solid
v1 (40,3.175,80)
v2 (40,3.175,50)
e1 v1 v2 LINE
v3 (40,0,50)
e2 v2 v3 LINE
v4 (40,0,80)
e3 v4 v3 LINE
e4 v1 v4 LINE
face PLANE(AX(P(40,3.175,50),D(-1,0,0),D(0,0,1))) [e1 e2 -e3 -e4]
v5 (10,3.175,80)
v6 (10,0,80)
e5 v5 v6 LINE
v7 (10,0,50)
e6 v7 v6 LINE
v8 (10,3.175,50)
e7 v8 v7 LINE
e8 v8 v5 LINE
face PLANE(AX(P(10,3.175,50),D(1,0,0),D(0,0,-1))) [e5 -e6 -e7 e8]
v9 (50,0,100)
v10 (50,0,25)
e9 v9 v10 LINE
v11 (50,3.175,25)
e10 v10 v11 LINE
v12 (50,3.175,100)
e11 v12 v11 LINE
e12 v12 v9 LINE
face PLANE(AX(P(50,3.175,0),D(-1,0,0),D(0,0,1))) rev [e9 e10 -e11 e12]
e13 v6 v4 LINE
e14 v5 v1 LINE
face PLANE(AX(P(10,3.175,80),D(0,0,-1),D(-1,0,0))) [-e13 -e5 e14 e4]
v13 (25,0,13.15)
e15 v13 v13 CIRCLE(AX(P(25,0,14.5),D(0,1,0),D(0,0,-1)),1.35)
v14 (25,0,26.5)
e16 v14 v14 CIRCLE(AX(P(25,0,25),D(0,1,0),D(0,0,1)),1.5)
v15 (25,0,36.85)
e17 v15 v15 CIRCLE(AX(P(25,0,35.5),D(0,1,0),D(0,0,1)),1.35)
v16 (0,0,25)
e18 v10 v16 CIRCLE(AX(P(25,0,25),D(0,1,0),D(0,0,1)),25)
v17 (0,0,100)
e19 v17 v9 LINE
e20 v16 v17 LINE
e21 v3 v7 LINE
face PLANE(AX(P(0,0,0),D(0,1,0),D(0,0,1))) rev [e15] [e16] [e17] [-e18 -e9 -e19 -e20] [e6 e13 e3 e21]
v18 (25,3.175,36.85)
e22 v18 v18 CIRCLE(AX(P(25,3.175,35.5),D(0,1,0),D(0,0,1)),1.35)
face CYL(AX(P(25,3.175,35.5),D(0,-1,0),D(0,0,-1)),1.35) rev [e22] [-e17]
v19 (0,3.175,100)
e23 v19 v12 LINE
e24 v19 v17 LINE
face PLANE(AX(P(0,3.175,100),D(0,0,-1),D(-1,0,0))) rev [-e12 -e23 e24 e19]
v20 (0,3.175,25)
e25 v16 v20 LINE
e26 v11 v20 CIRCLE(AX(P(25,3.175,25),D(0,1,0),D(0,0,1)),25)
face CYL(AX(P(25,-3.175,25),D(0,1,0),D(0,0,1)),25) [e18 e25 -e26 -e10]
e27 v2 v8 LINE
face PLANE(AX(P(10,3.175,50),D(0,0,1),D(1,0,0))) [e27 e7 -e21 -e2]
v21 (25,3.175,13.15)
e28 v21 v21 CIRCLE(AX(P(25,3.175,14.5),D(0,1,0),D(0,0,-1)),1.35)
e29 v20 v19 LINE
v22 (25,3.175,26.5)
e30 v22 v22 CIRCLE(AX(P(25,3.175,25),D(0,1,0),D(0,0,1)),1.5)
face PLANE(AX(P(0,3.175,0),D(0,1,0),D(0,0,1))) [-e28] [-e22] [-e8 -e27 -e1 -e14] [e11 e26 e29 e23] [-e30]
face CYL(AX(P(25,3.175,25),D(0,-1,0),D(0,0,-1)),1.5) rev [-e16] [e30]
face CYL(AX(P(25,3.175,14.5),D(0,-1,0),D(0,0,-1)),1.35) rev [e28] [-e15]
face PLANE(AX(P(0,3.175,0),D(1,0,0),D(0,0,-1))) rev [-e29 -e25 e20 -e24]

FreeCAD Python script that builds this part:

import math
import FreeCAD as App
import Part
import Sketcher
from FreeCAD import Vector
Q = App.Units.Quantity

doc = App.newDocument("Part")
body = doc.addObject("PartDesign::Body", "Body")

# Sketch on XZ plane
sketch1 = body.newObject("Sketcher::SketchObject", "Sketch")
sketch1.AttachmentSupport = (doc.getObject("XZ_Plane"), [""])
sketch1.MapMode = "FlatFace"
sketch1.addGeometry([
    Part.LineSegment(Vector(0, 0, 0), Vector(0, 100, 0)),  # 0
    Part.LineSegment(Vector(0, 100, 0), Vector(50, 100, 0)),  # 1
    Part.LineSegment(Vector(50, 100, 0), Vector(50, 0, 0)),  # 2
    Part.LineSegment(Vector(50, 0, 0), Vector(0, 0, 0)),  # 3
    Part.LineSegment(Vector(40, 80, 0), Vector(10, 80, 0)),  # 4
    Part.LineSegment(Vector(10, 80, 0), Vector(10, 50, 0)),  # 5
    Part.LineSegment(Vector(10, 50, 0), Vector(40, 50, 0)),  # 6
    Part.LineSegment(Vector(40, 50, 0), Vector(40, 80, 0)),  # 7
    Part.Circle(Vector(25, 35.5, 0), Vector(0, 0, 1), 1.4),  # 8
    Part.Circle(Vector(25, 25, 0), Vector(0, 0, 1), 1.5),  # 9
    Part.Circle(Vector(25, 14.5, 0), Vector(0, 0, 1), 1.4),  # 10
], False)
sketch1.addConstraint([
    Sketcher.Constraint("Coincident", 0, 2, 1, 1),
    Sketcher.Constraint("Coincident", 1, 2, 2, 1),
    Sketcher.Constraint("Coincident", 2, 2, 3, 1),
    Sketcher.Constraint("Coincident", 3, 2, 0, 1),
    Sketcher.Constraint("Coincident", 4, 2, 5, 1),
    Sketcher.Constraint("Coincident", 5, 2, 6, 1),
    Sketcher.Constraint("Coincident", 6, 2, 7, 1),
    Sketcher.Constraint("Coincident", 7, 2, 4, 1),
    Sketcher.Constraint("Vertical", 0),
    Sketcher.Constraint("Horizontal", 1),
    Sketcher.Constraint("Vertical", 2),
    Sketcher.Constraint("Horizontal", 3),
    Sketcher.Constraint("Horizontal", 4),
    Sketcher.Constraint("Vertical", 5),
    Sketcher.Constraint("Horizontal", 6),
    Sketcher.Constraint("Vertical", 7),
    Sketcher.Constraint("Coincident", 3, 2, -1, 1),
    Sketcher.Constraint("Equal", 8, 10),
    Sketcher.Constraint("Vertical", 8, 3, 9, 3),
    Sketcher.Constraint("Vertical", 9, 3, 10, 3),
    Sketcher.Constraint("Equal", 6, 5),
    Sketcher.Constraint("Diameter", 9, Q("3 mm")),
    Sketcher.Constraint("Diameter", 8, Q("2.7 mm")),
    Sketcher.Constraint("DistanceX", 1, 1, 1, 2, Q("50 mm")),
    Sketcher.Constraint("DistanceX", 4, 2, 4, 1, Q("30 mm")),
    Sketcher.Constraint("DistanceY", 0, 1, 0, 2, Q("100 mm")),
    Sketcher.Constraint("DistanceX", -1, 1, 8, 3, Q("25 mm")),
    Sketcher.Constraint("DistanceY", -1, 1, 9, 3, Q("25 mm")),
    Sketcher.Constraint("DistanceX", -1, 1, 4, 2, Q("10 mm")),
    Sketcher.Constraint("DistanceY", -1, 1, 4, 2, Q("80 mm")),
    Sketcher.Constraint("DistanceY", 10, 3, 8, 3, Q("21 mm")),
    Sketcher.Constraint("DistanceY", -1, 1, 8, 3, Q("35.5 mm")),
])
pad1 = body.newObject("PartDesign::Pad", "Pad")
pad1.Profile = sketch1
pad1.Length = 3.175
pad1.Reversed = True

# Sketch on XZ plane
sketch2 = body.newObject("Sketcher::SketchObject", "Sketch001")
sketch2.AttachmentSupport = (doc.getObject("XZ_Plane"), [""])
sketch2.MapMode = "FlatFace"
sketch2.AttachmentOffset = App.Placement(Vector(0, 0, -3.175), App.Rotation())
sketch2.addGeometry([
    Part.LineSegment(Vector(0, 0, 0), Vector(0, 25, 0)),  # 0
    Part.ArcOfCircle(Part.Circle(Vector(25, 25, 0), Vector(0, 0, 1), 25), math.radians(180), math.radians(270)),  # 1
    Part.LineSegment(Vector(25, 0, 0), Vector(0, 0, 0)),  # 2
    Part.ArcOfCircle(Part.Circle(Vector(25, 25, 0), Vector(0, 0, 1), 25), math.radians(-90), math.radians(0)),  # 3
    Part.LineSegment(Vector(50, 25, 0), Vector(50, 0, 0)),  # 4
    Part.LineSegment(Vector(50, 0, 0), Vector(25, 0, 0)),  # 5
], False)
sketch2.addConstraint([
    Sketcher.Constraint("Tangent", 0, 2, 1, 1),
    Sketcher.Constraint("Tangent", 1, 2, 2, 1),
    Sketcher.Constraint("Coincident", 2, 2, 0, 1),
    Sketcher.Constraint("Tangent", 3, 2, 4, 1),
    Sketcher.Constraint("Coincident", 4, 2, 5, 1),
    Sketcher.Constraint("Tangent", 5, 2, 3, 1),
    Sketcher.Constraint("Vertical", 0),
    Sketcher.Constraint("Horizontal", 2),
    Sketcher.Constraint("Vertical", 4),
    Sketcher.Constraint("Horizontal", 5),
    Sketcher.Constraint("Coincident", 2, 2, -1, 1),
    Sketcher.Constraint("Coincident", 3, 3, 1, 3),
    Sketcher.Constraint("Equal", 1, 3),
    Sketcher.Constraint("Radius", 1, Q("25 mm")),
])
pocket1 = body.newObject("PartDesign::Pocket", "Pocket")
pocket1.Profile = sketch2
pocket1.Length = 6.35
pocket1.Reversed = True

doc.recompute()
